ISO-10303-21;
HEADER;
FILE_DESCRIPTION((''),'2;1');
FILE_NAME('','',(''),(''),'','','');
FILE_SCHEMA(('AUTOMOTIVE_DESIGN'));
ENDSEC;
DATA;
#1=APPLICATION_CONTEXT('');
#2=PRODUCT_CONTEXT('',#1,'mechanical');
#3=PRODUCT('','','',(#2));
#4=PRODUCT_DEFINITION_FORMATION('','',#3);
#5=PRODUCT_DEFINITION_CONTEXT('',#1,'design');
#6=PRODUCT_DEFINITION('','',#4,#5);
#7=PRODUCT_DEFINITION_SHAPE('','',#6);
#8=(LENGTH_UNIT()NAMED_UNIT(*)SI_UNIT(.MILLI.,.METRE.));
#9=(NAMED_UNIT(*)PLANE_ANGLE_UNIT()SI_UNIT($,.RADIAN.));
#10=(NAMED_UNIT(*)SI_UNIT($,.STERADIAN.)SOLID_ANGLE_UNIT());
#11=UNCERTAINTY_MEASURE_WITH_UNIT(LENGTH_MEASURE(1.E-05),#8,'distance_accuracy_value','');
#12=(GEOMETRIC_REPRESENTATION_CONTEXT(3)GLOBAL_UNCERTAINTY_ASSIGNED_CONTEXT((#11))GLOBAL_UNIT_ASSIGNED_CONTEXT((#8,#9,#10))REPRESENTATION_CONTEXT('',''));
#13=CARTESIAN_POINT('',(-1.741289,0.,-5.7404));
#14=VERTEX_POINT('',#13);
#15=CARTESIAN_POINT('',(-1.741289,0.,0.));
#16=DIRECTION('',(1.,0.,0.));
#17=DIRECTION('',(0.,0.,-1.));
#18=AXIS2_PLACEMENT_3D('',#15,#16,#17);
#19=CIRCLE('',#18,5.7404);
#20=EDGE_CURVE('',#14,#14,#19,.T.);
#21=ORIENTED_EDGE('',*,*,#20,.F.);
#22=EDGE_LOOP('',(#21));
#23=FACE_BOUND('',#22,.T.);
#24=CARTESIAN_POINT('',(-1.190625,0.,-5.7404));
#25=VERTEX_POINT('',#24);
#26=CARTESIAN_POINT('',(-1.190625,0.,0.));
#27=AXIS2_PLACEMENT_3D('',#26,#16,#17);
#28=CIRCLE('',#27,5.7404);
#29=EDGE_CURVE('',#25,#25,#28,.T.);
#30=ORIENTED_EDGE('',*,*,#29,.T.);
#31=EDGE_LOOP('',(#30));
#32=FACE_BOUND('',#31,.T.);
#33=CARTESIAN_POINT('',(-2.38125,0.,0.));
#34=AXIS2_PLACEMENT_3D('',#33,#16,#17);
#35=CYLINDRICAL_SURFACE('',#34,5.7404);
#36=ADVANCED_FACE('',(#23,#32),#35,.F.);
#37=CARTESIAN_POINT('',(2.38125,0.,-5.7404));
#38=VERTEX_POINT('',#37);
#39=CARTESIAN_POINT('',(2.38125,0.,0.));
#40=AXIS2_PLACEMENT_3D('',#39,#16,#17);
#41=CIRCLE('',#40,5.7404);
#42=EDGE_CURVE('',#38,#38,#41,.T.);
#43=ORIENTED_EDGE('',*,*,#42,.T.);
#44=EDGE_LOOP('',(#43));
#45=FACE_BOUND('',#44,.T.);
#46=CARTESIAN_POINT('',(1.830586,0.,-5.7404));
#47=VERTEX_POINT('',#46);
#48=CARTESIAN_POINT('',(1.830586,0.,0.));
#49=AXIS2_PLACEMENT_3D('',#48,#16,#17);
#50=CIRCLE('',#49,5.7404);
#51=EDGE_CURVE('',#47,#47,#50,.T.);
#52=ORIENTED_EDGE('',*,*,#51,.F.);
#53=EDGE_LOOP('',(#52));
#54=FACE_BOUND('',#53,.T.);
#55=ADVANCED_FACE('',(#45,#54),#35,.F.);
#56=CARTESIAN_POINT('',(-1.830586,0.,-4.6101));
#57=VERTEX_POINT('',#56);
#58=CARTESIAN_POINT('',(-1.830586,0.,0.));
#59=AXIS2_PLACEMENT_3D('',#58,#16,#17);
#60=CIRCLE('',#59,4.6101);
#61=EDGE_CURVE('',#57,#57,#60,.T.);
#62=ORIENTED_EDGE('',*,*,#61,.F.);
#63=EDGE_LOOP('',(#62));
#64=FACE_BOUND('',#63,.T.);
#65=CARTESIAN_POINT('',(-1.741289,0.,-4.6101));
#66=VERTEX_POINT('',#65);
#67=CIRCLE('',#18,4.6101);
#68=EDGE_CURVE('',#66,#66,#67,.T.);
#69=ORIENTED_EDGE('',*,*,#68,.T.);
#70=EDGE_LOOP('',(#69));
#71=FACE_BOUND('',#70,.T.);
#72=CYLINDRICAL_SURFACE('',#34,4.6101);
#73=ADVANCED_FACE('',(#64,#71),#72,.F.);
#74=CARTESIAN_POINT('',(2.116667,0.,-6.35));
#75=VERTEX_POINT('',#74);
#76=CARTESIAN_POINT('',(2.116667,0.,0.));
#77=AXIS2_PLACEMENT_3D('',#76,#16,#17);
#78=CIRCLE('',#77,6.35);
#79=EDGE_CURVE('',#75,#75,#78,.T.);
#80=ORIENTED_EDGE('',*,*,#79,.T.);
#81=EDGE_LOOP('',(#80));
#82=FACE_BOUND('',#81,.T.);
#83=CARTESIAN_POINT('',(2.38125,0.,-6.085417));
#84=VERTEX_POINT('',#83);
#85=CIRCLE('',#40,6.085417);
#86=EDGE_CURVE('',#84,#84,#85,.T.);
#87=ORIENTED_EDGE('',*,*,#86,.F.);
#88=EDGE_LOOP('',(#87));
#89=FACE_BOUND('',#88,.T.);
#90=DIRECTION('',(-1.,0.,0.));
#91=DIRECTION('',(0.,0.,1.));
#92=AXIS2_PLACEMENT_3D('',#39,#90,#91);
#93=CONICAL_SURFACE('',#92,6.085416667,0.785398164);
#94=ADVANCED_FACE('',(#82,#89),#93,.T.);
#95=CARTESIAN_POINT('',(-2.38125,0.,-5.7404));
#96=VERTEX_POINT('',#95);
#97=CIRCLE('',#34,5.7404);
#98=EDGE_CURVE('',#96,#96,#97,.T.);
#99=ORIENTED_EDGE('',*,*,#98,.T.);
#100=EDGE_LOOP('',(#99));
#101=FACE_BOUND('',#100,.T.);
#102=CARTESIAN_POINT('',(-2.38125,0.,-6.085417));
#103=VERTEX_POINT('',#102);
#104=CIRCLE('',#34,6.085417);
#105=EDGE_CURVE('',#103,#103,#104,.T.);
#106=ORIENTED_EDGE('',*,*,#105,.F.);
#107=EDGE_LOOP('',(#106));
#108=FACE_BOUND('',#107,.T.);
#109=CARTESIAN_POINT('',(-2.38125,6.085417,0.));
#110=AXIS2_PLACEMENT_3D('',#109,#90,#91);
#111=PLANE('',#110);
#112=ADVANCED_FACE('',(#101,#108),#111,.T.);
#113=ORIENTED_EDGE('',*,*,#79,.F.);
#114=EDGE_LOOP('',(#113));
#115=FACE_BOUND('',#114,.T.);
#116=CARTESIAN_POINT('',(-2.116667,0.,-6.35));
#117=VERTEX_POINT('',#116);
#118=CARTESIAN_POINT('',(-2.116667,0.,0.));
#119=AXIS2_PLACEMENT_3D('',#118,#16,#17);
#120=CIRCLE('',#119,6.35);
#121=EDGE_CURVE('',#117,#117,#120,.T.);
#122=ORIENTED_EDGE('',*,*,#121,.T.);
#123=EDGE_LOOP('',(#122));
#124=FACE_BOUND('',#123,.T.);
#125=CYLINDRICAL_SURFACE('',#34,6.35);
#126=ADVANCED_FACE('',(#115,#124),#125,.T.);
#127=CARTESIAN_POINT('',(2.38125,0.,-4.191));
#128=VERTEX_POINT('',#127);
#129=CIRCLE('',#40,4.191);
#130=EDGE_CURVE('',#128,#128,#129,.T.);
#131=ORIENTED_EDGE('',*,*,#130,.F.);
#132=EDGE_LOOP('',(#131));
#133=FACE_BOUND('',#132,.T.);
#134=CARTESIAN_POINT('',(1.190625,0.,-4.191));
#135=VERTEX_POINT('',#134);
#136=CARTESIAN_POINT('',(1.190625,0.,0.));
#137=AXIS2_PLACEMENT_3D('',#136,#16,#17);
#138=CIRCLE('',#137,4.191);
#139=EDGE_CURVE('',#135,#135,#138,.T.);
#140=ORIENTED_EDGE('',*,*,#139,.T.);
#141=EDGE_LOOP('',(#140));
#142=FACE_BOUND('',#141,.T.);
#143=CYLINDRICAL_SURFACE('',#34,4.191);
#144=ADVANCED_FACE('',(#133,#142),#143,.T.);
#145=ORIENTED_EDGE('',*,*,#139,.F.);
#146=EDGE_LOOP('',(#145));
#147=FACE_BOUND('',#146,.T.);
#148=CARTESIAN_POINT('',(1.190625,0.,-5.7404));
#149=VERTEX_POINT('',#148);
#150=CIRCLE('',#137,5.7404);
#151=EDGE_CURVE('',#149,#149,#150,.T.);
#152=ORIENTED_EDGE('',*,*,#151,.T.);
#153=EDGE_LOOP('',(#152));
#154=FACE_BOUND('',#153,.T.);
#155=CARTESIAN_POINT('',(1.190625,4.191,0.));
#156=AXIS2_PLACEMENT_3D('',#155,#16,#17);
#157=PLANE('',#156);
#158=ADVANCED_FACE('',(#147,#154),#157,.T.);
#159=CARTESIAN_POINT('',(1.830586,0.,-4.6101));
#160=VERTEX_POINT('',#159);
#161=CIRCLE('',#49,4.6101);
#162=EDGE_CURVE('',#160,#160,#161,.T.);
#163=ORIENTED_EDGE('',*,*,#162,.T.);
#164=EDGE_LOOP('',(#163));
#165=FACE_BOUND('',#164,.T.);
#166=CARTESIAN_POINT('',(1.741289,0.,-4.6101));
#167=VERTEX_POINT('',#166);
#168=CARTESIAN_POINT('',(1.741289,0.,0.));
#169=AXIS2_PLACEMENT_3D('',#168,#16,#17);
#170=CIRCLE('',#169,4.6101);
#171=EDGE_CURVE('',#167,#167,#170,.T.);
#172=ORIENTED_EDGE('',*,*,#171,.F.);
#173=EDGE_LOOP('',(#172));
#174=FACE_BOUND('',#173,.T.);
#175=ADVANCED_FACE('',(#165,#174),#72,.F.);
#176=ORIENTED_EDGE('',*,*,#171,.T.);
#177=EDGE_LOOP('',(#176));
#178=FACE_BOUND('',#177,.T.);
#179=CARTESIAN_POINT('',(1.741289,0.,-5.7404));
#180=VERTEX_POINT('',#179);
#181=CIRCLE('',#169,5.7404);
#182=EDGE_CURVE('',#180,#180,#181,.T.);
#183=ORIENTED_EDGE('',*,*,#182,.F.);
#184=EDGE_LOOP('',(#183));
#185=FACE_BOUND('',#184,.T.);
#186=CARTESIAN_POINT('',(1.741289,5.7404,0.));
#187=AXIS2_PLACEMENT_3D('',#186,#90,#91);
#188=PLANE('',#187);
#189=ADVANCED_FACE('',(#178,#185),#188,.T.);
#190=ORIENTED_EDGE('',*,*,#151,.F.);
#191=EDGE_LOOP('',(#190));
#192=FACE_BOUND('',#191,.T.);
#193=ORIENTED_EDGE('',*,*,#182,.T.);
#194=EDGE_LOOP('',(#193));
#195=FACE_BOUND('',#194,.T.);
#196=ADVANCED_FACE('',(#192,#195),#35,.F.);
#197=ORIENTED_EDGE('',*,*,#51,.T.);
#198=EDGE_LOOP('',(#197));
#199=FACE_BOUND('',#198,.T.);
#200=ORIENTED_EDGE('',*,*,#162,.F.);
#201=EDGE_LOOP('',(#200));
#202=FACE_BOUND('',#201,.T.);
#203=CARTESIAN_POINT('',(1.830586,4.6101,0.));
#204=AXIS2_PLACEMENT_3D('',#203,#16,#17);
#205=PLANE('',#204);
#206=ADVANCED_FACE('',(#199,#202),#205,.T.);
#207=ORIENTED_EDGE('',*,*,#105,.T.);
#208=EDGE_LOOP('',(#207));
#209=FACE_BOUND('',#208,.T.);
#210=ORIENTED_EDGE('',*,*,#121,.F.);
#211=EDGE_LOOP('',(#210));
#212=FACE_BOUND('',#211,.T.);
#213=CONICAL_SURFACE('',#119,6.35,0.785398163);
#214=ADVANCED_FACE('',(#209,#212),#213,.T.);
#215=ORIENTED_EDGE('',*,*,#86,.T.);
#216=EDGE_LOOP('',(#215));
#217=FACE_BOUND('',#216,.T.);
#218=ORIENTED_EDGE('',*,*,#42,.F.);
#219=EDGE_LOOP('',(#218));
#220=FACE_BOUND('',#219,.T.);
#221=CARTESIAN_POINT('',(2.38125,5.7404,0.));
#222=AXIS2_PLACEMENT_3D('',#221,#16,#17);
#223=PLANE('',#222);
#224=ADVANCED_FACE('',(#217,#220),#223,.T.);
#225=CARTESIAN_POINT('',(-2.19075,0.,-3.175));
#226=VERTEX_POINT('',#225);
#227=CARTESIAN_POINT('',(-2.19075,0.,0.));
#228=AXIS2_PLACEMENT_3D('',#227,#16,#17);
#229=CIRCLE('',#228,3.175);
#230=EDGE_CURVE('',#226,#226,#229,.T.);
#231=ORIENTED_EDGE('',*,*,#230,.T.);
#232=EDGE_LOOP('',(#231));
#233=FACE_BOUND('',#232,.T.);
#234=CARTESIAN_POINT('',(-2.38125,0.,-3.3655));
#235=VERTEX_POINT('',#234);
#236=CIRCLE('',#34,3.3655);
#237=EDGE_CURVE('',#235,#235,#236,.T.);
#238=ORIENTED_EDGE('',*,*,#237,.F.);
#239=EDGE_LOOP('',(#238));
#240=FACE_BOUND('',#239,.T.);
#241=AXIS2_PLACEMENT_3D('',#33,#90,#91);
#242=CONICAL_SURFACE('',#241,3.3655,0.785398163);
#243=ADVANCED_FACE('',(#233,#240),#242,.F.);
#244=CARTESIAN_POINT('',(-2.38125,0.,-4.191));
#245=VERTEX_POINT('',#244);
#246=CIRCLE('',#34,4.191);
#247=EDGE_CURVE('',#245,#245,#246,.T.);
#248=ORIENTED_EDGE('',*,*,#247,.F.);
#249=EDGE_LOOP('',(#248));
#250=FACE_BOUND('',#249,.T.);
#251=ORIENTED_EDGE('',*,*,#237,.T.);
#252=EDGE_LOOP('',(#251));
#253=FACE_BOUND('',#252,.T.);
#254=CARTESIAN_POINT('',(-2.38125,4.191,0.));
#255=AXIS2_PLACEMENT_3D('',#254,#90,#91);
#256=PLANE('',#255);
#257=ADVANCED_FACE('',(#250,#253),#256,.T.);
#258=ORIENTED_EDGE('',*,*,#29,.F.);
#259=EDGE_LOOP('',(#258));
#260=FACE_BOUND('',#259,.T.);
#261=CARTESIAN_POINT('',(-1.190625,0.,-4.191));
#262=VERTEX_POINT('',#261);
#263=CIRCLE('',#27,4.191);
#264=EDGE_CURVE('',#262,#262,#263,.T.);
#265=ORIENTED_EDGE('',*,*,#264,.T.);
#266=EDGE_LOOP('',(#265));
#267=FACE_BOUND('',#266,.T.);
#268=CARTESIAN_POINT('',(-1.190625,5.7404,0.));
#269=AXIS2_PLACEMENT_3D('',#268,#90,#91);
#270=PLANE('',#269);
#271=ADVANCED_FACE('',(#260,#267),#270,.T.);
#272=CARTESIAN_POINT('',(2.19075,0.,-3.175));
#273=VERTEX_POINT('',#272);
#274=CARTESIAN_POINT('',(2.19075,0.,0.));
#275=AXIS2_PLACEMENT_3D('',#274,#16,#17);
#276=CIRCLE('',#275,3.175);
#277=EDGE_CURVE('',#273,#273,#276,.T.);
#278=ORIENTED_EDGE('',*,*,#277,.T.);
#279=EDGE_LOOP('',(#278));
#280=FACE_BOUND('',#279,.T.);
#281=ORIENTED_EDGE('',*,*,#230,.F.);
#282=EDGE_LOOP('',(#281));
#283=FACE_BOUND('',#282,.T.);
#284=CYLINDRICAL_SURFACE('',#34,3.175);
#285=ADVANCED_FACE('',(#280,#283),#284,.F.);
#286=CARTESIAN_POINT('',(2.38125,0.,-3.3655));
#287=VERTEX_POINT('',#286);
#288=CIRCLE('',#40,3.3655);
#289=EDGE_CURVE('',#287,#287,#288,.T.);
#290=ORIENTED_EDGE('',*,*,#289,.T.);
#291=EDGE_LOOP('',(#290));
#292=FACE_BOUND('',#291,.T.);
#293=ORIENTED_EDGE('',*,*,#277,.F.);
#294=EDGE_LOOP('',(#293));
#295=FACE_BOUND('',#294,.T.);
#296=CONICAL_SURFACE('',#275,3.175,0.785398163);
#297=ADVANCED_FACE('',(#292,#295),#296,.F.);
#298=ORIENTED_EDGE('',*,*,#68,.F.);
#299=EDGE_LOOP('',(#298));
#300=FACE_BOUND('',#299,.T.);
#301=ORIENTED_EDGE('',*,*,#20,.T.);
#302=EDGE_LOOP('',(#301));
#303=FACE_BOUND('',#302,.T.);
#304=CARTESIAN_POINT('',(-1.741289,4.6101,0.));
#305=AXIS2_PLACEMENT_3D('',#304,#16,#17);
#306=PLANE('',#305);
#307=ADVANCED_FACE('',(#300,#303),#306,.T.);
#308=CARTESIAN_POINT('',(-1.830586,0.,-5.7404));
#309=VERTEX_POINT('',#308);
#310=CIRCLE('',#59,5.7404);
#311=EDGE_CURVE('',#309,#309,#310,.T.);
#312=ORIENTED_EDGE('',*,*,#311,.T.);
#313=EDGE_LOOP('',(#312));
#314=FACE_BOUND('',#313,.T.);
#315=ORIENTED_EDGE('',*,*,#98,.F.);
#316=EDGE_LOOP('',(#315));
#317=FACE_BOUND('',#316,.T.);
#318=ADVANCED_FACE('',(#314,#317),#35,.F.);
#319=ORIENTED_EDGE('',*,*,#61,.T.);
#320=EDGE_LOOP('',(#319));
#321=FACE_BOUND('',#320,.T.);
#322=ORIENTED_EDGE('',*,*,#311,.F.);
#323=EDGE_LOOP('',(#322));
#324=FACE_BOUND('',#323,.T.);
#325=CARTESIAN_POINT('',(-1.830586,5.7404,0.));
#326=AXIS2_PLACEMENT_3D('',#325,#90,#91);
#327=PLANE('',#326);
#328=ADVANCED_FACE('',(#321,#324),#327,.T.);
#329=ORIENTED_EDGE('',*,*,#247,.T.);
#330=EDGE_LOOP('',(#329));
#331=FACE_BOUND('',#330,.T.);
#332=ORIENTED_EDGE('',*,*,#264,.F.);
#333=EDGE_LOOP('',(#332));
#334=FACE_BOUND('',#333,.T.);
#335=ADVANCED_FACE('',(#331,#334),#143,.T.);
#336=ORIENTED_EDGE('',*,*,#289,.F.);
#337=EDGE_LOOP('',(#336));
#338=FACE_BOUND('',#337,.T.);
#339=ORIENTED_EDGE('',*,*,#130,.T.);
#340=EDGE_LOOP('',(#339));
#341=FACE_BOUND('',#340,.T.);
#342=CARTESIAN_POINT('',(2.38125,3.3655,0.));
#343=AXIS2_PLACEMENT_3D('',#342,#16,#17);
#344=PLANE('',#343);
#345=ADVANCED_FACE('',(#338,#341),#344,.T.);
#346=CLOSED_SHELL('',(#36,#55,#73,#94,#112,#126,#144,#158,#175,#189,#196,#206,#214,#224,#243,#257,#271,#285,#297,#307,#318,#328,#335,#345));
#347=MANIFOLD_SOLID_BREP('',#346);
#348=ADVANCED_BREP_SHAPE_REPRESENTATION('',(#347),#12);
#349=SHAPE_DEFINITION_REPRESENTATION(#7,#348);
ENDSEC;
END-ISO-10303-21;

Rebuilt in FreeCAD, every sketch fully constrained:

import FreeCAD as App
import Part
import Sketcher
Q = App.Units.Quantity

doc = App.newDocument("Part")
params = doc.addObject("Spreadsheet::Sheet", "Params")
for row, (alias, value) in enumerate([
    ("sketch1_width", "0.046875 in"),
    ("sketch1_height", "0.061 in"),
    ("revolution_angle", "360 deg"),
], start=1):
    params.set(f"A{row}", alias)
    params.set(f"B{row}", "=" + value)
    params.setAlias(f"B{row}", alias)

body = doc.addObject("PartDesign::Body", "Body")

sketch1 = body.newObject("Sketcher::SketchObject", "Sketch")
sketch1.AttachmentSupport = (doc.getObject("XY_Plane"), [""])
sketch1.MapMode = "FlatFace"
sketch1.addGeometry([
    Part.LineSegment(App.Vector(-2.38125, 3.3655, 0), App.Vector(-2.19075, 3.175, 0)),
    Part.LineSegment(App.Vector(-2.19075, 3.175, 0), App.Vector(2.19075, 3.175, 0)),
    Part.LineSegment(App.Vector(2.19075, 3.175, 0), App.Vector(2.38125, 3.3655, 0)),
    Part.LineSegment(App.Vector(2.38125, 3.3655, 0), App.Vector(2.38125, 4.191, 0)),
    Part.LineSegment(App.Vector(2.38125, 4.191, 0), App.Vector(1.190625, 4.191, 0)),
    Part.LineSegment(App.Vector(1.190625, 4.191, 0), App.Vector(1.190625, 5.7404, 0)),
    Part.LineSegment(App.Vector(1.190625, 5.7404, 0), App.Vector(1.741289, 5.7404, 0)),
    Part.LineSegment(App.Vector(1.741289, 5.7404, 0), App.Vector(1.741289, 4.6101, 0)),
    Part.LineSegment(App.Vector(1.741289, 4.6101, 0), App.Vector(1.830586, 4.6101, 0)),
    Part.LineSegment(App.Vector(1.830586, 4.6101, 0), App.Vector(1.830586, 5.7404, 0)),
    Part.LineSegment(App.Vector(1.830586, 5.7404, 0), App.Vector(2.38125, 5.7404, 0)),
    Part.LineSegment(App.Vector(2.38125, 5.7404, 0), App.Vector(2.38125, 6.085417, 0)),
    Part.LineSegment(App.Vector(2.38125, 6.085417, 0), App.Vector(2.116667, 6.35, 0)),
    Part.LineSegment(App.Vector(2.116667, 6.35, 0), App.Vector(-2.116667, 6.35, 0)),
    Part.LineSegment(App.Vector(-2.116667, 6.35, 0), App.Vector(-2.38125, 6.085417, 0)),
    Part.LineSegment(App.Vector(-2.38125, 6.085417, 0), App.Vector(-2.38125, 5.7404, 0)),
    Part.LineSegment(App.Vector(-2.38125, 5.7404, 0), App.Vector(-1.830586, 5.7404, 0)),
    Part.LineSegment(App.Vector(-1.830586, 5.7404, 0), App.Vector(-1.830586, 4.6101, 0)),
    Part.LineSegment(App.Vector(-1.830586, 4.6101, 0), App.Vector(-1.741289, 4.6101, 0)),
    Part.LineSegment(App.Vector(-1.741289, 4.6101, 0), App.Vector(-1.741289, 5.7404, 0)),
    Part.LineSegment(App.Vector(-1.741289, 5.7404, 0), App.Vector(-1.190625, 5.7404, 0)),
    Part.LineSegment(App.Vector(-1.190625, 5.7404, 0), App.Vector(-1.190625, 4.191, 0)),
    Part.LineSegment(App.Vector(-1.190625, 4.191, 0), App.Vector(-2.38125, 4.191, 0)),
    Part.LineSegment(App.Vector(-2.38125, 4.191, 0), App.Vector(-2.38125, 3.3655, 0)),
], False)
sketch1.addConstraint([
    Sketcher.Constraint("Coincident", 0, 2, 1, 1),
    Sketcher.Constraint("Coincident", 1, 2, 2, 1),
    Sketcher.Constraint("Coincident", 2, 2, 3, 1),
    Sketcher.Constraint("Coincident", 3, 2, 4, 1),
    Sketcher.Constraint("Coincident", 4, 2, 5, 1),
    Sketcher.Constraint("Coincident", 5, 2, 6, 1),
    Sketcher.Constraint("Coincident", 6, 2, 7, 1),
    Sketcher.Constraint("Coincident", 7, 2, 8, 1),
    Sketcher.Constraint("Coincident", 8, 2, 9, 1),
    Sketcher.Constraint("Coincident", 9, 2, 10, 1),
    Sketcher.Constraint("Coincident", 10, 2, 11, 1),
    Sketcher.Constraint("Coincident", 11, 2, 12, 1),
    Sketcher.Constraint("Coincident", 12, 2, 13, 1),
    Sketcher.Constraint("Coincident", 13, 2, 14, 1),
    Sketcher.Constraint("Coincident", 14, 2, 15, 1),
    Sketcher.Constraint("Coincident", 15, 2, 16, 1),
    Sketcher.Constraint("Coincident", 16, 2, 17, 1),
    Sketcher.Constraint("Coincident", 17, 2, 18, 1),
    Sketcher.Constraint("Coincident", 18, 2, 19, 1),
    Sketcher.Constraint("Coincident", 19, 2, 20, 1),
    Sketcher.Constraint("Coincident", 20, 2, 21, 1),
    Sketcher.Constraint("Coincident", 21, 2, 22, 1),
    Sketcher.Constraint("Coincident", 22, 2, 23, 1),
    Sketcher.Constraint("Coincident", 23, 2, 0, 1),
    Sketcher.Constraint("Horizontal", 1),
    Sketcher.Constraint("Vertical", 3),
    Sketcher.Constraint("Horizontal", 4),
    Sketcher.Constraint("Vertical", 5),
    Sketcher.Constraint("Horizontal", 6),
    Sketcher.Constraint("Vertical", 7),
    Sketcher.Constraint("Horizontal", 8),
    Sketcher.Constraint("Vertical", 9),
    Sketcher.Constraint("Horizontal", 10),
    Sketcher.Constraint("Vertical", 11),
    Sketcher.Constraint("Horizontal", 13),
    Sketcher.Constraint("Vertical", 15),
    Sketcher.Constraint("Horizontal", 16),
    Sketcher.Constraint("Vertical", 17),
    Sketcher.Constraint("Horizontal", 18),
    Sketcher.Constraint("Vertical", 19),
    Sketcher.Constraint("Horizontal", 20),
    Sketcher.Constraint("Vertical", 21),
    Sketcher.Constraint("Horizontal", 22),
    Sketcher.Constraint("Vertical", 23),
    Sketcher.Constraint("Symmetric", 11, 2, 14, 2, -2),
    Sketcher.Constraint("Symmetric", 9, 2, 16, 2, -2),
    Sketcher.Constraint("Symmetric", 7, 2, 18, 2, -2),
    Sketcher.Constraint("Symmetric", 5, 2, 20, 2, -2),
    Sketcher.Constraint("Symmetric", 3, 2, 22, 2, -2),
    Sketcher.Constraint("Perpendicular", 0, 2),
    Sketcher.Constraint("Perpendicular", 2, 12),
    Sketcher.Constraint("Perpendicular", 12, 14),
    Sketcher.Constraint("Horizontal", 6, 2, 9, 2),
    Sketcher.Constraint("Horizontal", 2, 2, 23, 2),
    Sketcher.Constraint("Vertical", 3, 2, 10, 2),
    Sketcher.Constraint("Equal", 6, 10),
    Sketcher.Constraint("Equal", 0, 2),
    Sketcher.Constraint("DistanceX", 4, 2, 4, 1, Q("0.046875 in")),
    Sketcher.Constraint("DistanceY", 5, 1, 5, 2, Q("0.061 in")),
    Sketcher.Constraint("DistanceY", -1, 1, 12, 2, Q("0.25 in")),
    Sketcher.Constraint("DistanceX", 0, 2, 2, 2, Q("0.18 in")),
    Sketcher.Constraint("DistanceY", 1, 2, 3, 2, Q("0.04 in")),
    Sketcher.Constraint("DistanceX", 1, 1, 1, 2, Q("0.1725 in")),
    Sketcher.Constraint("DistanceY", 7, 2, 7, 1, Q("0.0445 in")),
    Sketcher.Constraint("DistanceY", -1, 1, 0, 2, Q("0.125 in")),
    Sketcher.Constraint("DistanceX", 6, 1, 6, 2, Q("0.550664 mm")),
    Sketcher.Constraint("DistanceX", 13, 2, 13, 1, Q("4.233333 mm")),
])
sketch1.setExpression("Constraints[57]", "Params.sketch1_width")
sketch1.setExpression("Constraints[58]", "Params.sketch1_height")
revolution = body.newObject("PartDesign::Revolution", "Revolution")
revolution.Profile = sketch1
revolution.ReferenceAxis = (sketch1, ["H_Axis"])
revolution.setExpression("Angle", "Params.revolution_angle")

doc.recompute()
